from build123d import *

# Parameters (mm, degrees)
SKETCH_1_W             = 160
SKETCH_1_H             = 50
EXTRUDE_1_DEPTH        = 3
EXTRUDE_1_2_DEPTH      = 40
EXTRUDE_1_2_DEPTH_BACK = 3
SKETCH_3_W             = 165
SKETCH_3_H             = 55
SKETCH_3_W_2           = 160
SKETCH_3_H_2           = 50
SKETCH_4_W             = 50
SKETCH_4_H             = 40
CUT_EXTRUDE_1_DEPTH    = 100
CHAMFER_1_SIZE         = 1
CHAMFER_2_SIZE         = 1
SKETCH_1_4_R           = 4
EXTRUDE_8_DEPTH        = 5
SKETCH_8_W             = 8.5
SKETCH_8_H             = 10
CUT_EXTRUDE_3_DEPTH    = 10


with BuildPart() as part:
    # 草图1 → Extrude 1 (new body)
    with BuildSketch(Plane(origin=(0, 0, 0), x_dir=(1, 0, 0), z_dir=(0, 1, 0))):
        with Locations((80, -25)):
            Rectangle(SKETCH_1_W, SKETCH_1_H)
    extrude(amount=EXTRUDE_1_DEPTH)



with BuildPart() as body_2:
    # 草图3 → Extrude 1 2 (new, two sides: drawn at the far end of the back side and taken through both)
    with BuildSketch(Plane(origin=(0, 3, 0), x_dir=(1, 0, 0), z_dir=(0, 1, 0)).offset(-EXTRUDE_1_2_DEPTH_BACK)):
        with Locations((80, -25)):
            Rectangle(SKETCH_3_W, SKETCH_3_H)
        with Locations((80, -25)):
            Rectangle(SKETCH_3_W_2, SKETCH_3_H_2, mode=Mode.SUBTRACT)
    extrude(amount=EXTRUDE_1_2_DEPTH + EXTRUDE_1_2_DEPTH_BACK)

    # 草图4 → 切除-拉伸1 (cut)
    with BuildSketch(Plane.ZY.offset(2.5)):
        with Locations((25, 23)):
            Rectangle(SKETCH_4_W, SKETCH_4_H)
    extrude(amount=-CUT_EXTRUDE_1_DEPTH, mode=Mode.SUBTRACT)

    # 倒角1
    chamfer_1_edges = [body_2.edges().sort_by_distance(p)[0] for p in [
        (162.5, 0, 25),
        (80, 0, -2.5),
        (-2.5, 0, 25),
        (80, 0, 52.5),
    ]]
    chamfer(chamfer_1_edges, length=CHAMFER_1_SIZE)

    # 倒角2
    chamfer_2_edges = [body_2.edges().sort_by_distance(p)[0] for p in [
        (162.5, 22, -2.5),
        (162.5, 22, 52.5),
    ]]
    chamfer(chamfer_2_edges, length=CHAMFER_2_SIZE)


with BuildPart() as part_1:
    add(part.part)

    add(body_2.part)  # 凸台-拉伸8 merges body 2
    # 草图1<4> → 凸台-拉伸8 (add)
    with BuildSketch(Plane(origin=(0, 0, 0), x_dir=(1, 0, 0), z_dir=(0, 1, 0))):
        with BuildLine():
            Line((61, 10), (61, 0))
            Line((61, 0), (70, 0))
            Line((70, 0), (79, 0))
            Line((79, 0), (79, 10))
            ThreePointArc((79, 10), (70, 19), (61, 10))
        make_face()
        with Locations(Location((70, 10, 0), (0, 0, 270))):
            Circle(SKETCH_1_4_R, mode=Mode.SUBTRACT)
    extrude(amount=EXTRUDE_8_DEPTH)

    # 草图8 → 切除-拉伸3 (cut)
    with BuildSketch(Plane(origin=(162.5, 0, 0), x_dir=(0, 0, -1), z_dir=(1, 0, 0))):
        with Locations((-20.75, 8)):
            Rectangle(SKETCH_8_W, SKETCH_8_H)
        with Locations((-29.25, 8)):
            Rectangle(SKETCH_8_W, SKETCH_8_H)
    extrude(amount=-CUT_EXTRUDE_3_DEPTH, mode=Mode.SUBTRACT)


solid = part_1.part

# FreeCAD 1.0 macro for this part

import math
import FreeCAD as App
import Part
import Sketcher
from FreeCAD import Vector


def edges_at(feature, points):
    """Names of the edges that pass closest to the given points."""
    edges = feature.Shape.Edges
    near = lambda p: min(range(len(edges)), key=lambda i: edges[i].distToShape(Part.Vertex(*p))[0])
    return sorted({f"Edge{near(p) + 1}" for p in points})


def add_polygon(sketch, points):
    """Adds a closed chain of lines whose ends are joined by coincident constraints."""
    first, n = sketch.GeometryCount, len(points)
    for a, b in zip(points, points[1:] + points[:1]):
        sketch.addGeometry(Part.LineSegment(App.Vector(*a, 0), App.Vector(*b, 0)), False)
    for i in range(n):
        sketch.addConstraint(Sketcher.Constraint("Coincident", first + i, 2, first + (i + 1) % n, 1))

doc = App.newDocument("Part")
params = doc.addObject("Spreadsheet::Sheet", "Params")
for row, (alias, value) in enumerate([
    ("sketch1_width", "160 mm"),
    ("sketch1_height", "50 mm"),
    ("pad1_length", "3 mm"),
    ("sketch2_width", "165 mm"),
    ("sketch2_width2", "160 mm"),
    ("sketch2_height", "55 mm"),
    ("sketch2_height2", "50 mm"),
    ("pad2_length", "40 mm"),
    ("pad2_length2", "3 mm"),
    ("sketch3_width", "40 mm"),
    ("sketch3_height", "50 mm"),
    ("pocket1_length", "100 mm"),
    ("chamfer_size", "1 mm"),
    ("chamfer2_size", "1 mm"),
    ("sketch4_diameter", "8 mm"),
    ("sketch4_radius", "9 mm"),
    ("sketch4_height", "10 mm"),
    ("pad3_length", "5 mm"),
    ("sketch5_width", "10 mm"),
    ("sketch5_height", "17 mm"),
    ("pocket2_length", "10 mm"),
], start=1):
    params.set(f"A{row}", alias)
    params.set(f"B{row}", "=" + value)
    params.setAlias(f"B{row}", alias)

body = doc.addObject("PartDesign::Body", "Body")

# Sketch on XZ plane
sketch1 = doc.addObject("Sketcher::SketchObject", "Sketch")
body.addObject(sketch1)
sketch1.AttachmentSupport = (doc.XZ_Plane, [""])
sketch1.MapMode = "FlatFace"
add_polygon(sketch1, [(0, 0), (0, 50), (160, 50), (160, 0)])  # lines 0-3
sketch1.addConstraint([
    Sketcher.Constraint("Vertical", 0),
    Sketcher.Constraint("Horizontal", 1),
    Sketcher.Constraint("Vertical", 2),
    Sketcher.Constraint("Horizontal", 3),
    Sketcher.Constraint("Coincident", 3, 2, -1, 1),
    Sketcher.Constraint("DistanceX", 1, 1, 1, 2, 160.0),
    Sketcher.Constraint("DistanceY", 0, 1, 0, 2, 50.0),
])
sketch1.setExpression("Constraints[9]", "Params.sketch1_width")
sketch1.setExpression("Constraints[10]", "Params.sketch1_height")
pad1 = doc.addObject("PartDesign::Pad", "Pad")
body.addObject(pad1)
pad1.Profile = sketch1
pad1.setExpression("Length", "Params.pad1_length")
pad1.Reversed = True
body2 = doc.addObject("PartDesign::Body", "Body001")

# Sketch on XZ plane
sketch2 = doc.addObject("Sketcher::SketchObject", "Sketch001")
body2.addObject(sketch2)
sketch2.AttachmentSupport = (doc.getObject("XZ_Plane001"), [""])
sketch2.MapMode = "FlatFace"
sketch2.AttachmentOffset = App.Placement(Vector(0, 0, -3), App.Rotation())
add_polygon(sketch2, [(-2.5, -2.5), (-2.5, 52.5), (162.5, 52.5), (162.5, -2.5)])  # lines 0-3
add_polygon(sketch2, [(160, 50), (0, 50), (0, 0), (160, 0)])  # lines 4-7
sketch2.addConstraint([
    Sketcher.Constraint("Vertical", 0),
    Sketcher.Constraint("Horizontal", 1),
    Sketcher.Constraint("Vertical", 2),
    Sketcher.Constraint("Horizontal", 3),
    Sketcher.Constraint("Horizontal", 4),
    Sketcher.Constraint("Vertical", 5),
    Sketcher.Constraint("Horizontal", 6),
    Sketcher.Constraint("Vertical", 7),
    Sketcher.Constraint("Coincident", 5, 2, -1, 1),
    Sketcher.Constraint("DistanceX", 1, 1, 1, 2, 165.0),
    Sketcher.Constraint("DistanceX", 4, 2, 4, 1, 160.0),
    Sketcher.Constraint("DistanceY", 0, 1, 0, 2, 55.0),
    Sketcher.Constraint("DistanceY", 5, 2, 5, 1, 50.0),
    Sketcher.Constraint("DistanceX", 0, 2, -1, 1, 2.5),
    Sketcher.Constraint("DistanceY", -1, 1, 0, 2, 52.5),
])
sketch2.setExpression("Constraints[17]", "Params.sketch2_width")
sketch2.setExpression("Constraints[18]", "Params.sketch2_width2")
sketch2.setExpression("Constraints[19]", "Params.sketch2_height")
sketch2.setExpression("Constraints[20]", "Params.sketch2_height2")
pad2 = doc.addObject("PartDesign::Pad", "Pad001")
body2.addObject(pad2)
pad2.Profile = sketch2
pad2.Type = "TwoLengths"
pad2.setExpression("Length", "Params.pad2_length")
pad2.setExpression("Length2", "Params.pad2_length2")
pad2.Reversed = True

# Sketch on YZ plane
sketch3 = doc.addObject("Sketcher::SketchObject", "Sketch002")
body2.addObject(sketch3)
sketch3.AttachmentSupport = (doc.getObject("YZ_Plane001"), [""])
sketch3.MapMode = "FlatFace"
sketch3.AttachmentOffset = App.Placement(Vector(0, 0, -2.5), App.Rotation())
add_polygon(sketch3, [(43, 0), (3, 0), (3, 50), (43, 50)])  # lines 0-3
sketch3.addConstraint([
    Sketcher.Constraint("Horizontal", 0),
    Sketcher.Constraint("Vertical", 1),
    Sketcher.Constraint("Horizontal", 2),
    Sketcher.Constraint("Vertical", 3),
    Sketcher.Constraint("PointOnObject", 0, 2, -1),
    Sketcher.Constraint("DistanceX", 0, 2, 0, 1, 40.0),
    Sketcher.Constraint("DistanceY", 1, 1, 1, 2, 50.0),
    Sketcher.Constraint("DistanceX", -1, 1, 0, 2, 3.0),
])
sketch3.setExpression("Constraints[9]", "Params.sketch3_width")
sketch3.setExpression("Constraints[10]", "Params.sketch3_height")
pocket1 = doc.addObject("PartDesign::Pocket", "Pocket")
body2.addObject(pocket1)
pocket1.Profile = sketch3
pocket1.setExpression("Length", "Params.pocket1_length")
pocket1.Reversed = True
doc.recompute()

chamfer = doc.addObject("PartDesign::Chamfer", "Chamfer")
body2.addObject(chamfer)
chamfer.Base = (pocket1, edges_at(pocket1, [
    (162.5, 0, 25),
    (80, 0, -2.5),
    (-2.5, 0, 25),
    (80, 0, 52.5),
]))
chamfer.setExpression("Size", "Params.chamfer_size")
doc.recompute()

chamfer2 = doc.addObject("PartDesign::Chamfer", "Chamfer001")
body2.addObject(chamfer2)
chamfer2.Base = (chamfer, edges_at(chamfer, [(162.5, 22, -2.5), (162.5, 22, 52.5)]))
chamfer2.setExpression("Size", "Params.chamfer2_size")
doc.recompute()

boolean = doc.addObject("PartDesign::Boolean", "Boolean")
body.addObject(boolean)
boolean.Type = "Fuse"
boolean.addObjects([body2])

# Sketch on XZ plane
sketch4 = doc.addObject("Sketcher::SketchObject", "Sketch003")
body.addObject(sketch4)
sketch4.AttachmentSupport = (doc.XZ_Plane, [""])
sketch4.MapMode = "FlatFace"
sketch4.addGeometry([
    Part.LineSegment(Vector(61, -10, 0), Vector(61, 0, 0)),  # 0
    Part.LineSegment(Vector(61, 0, 0), Vector(79, 0, 0)),  # 1
    Part.LineSegment(Vector(79, 0, 0), Vector(79, -10, 0)),  # 2
    Part.ArcOfCircle(Part.Circle(Vector(70, -10, 0), Vector(0, 0, 1), 9), math.radians(180), math.radians(360)),  # 3
    Part.Circle(Vector(70, -10, 0), Vector(0, 0, 1), 4),  # 4
], False)
sketch4.addConstraint([
    Sketcher.Constraint("Coincident", 0, 2, 1, 1),
    Sketcher.Constraint("Coincident", 1, 2, 2, 1),
    Sketcher.Constraint("Tangent", 2, 2, 3, 2),
    Sketcher.Constraint("Tangent", 3, 1, 0, 1),
    Sketcher.Constraint("Vertical", 0),
    Sketcher.Constraint("Horizontal", 1),
    Sketcher.Constraint("Vertical", 2),
    Sketcher.Constraint("Coincident", 4, 3, 3, 3),
    Sketcher.Constraint("PointOnObject", 0, 2, -1),
    Sketcher.Constraint("Diameter", 4, 8.0),
    Sketcher.Constraint("Radius", 3, 9.0),
    Sketcher.Constraint("DistanceY", 0, 1, 0, 2, 10.0),
    Sketcher.Constraint("DistanceX", -1, 1, 3, 3, 70.0),
])
sketch4.setExpression("Constraints[9]", "Params.sketch4_diameter")
sketch4.setExpression("Constraints[10]", "Params.sketch4_radius")
sketch4.setExpression("Constraints[11]", "Params.sketch4_height")
pad3 = doc.addObject("PartDesign::Pad", "Pad002")
body.addObject(pad3)
pad3.Profile = sketch4
pad3.setExpression("Length", "Params.pad3_length")
pad3.Reversed = True

# Sketch on YZ plane
sketch5 = doc.addObject("Sketcher::SketchObject", "Sketch004")
body.addObject(sketch5)
sketch5.AttachmentSupport = (doc.YZ_Plane, [""])
sketch5.MapMode = "FlatFace"
sketch5.AttachmentOffset = App.Placement(Vector(0, 0, 162.5), App.Rotation())
add_polygon(sketch5, [(3, 16.5), (13, 16.5), (13, 33.5), (3, 33.5)])  # lines 0-3
sketch5.addConstraint([
    Sketcher.Constraint("Horizontal", 0),
    Sketcher.Constraint("Vertical", 1),
    Sketcher.Constraint("Horizontal", 2),
    Sketcher.Constraint("Vertical", 3),
    Sketcher.Constraint("DistanceX", 0, 1, 0, 2, 10.0),
    Sketcher.Constraint("DistanceY", 1, 1, 1, 2, 17.0),
    Sketcher.Constraint("DistanceX", -1, 1, 0, 2, 13.0),
    Sketcher.Constraint("DistanceY", -1, 1, 0, 2, 16.5),
])
sketch5.setExpression("Constraints[8]", "Params.sketch5_width")
sketch5.setExpression("Constraints[9]", "Params.sketch5_height")
pocket2 = doc.addObject("PartDesign::Pocket", "Pocket001")
body.addObject(pocket2)
pocket2.Profile = sketch5
pocket2.setExpression("Length", "Params.pocket2_length")

doc.recompute()
